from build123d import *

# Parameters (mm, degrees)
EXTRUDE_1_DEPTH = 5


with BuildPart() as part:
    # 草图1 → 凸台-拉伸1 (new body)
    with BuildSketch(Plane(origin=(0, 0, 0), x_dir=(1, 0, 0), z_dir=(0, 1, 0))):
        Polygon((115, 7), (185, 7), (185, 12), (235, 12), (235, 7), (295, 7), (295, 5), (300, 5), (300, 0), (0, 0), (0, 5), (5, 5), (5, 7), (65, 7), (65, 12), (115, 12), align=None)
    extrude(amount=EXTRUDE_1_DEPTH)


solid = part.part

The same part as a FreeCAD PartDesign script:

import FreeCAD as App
import Part
import Sketcher

V = App.Vector


def add_polygon(sketch, points):
    """Adds a closed chain of lines whose ends are joined by coincident constraints."""
    first, n = sketch.GeometryCount, len(points)
    for a, b in zip(points, points[1:] + points[:1]):
        sketch.addGeometry(Part.LineSegment(App.Vector(*a, 0), App.Vector(*b, 0)), False)
    for i in range(n):
        sketch.addConstraint(Sketcher.Constraint("Coincident", first + i, 2, first + (i + 1) % n, 1))

doc = App.newDocument("Part")
body = doc.addObject("PartDesign::Body", "Body")

# Sketch on XZ plane
sketch1 = doc.addObject("Sketcher::SketchObject", "Sketch")
body.addObject(sketch1)
sketch1.AttachmentSupport = (doc.XZ_Plane, [""])
sketch1.MapMode = "FlatFace"
add_polygon(sketch1, [(185, -7), (115, -7), (115, -12), (65, -12), (65, -7), (5, -7), (5, -5), (0, -5), (0, 0), (300, 0), (300, -5), (295, -5), (295, -7), (235, -7), (235, -12), (185, -12)])  # lines 0-15
sketch1.addConstraint([
    Sketcher.Constraint("Horizontal", 0),
    Sketcher.Constraint("Vertical", 1),
    Sketcher.Constraint("Horizontal", 2),
    Sketcher.Constraint("Vertical", 3),
    Sketcher.Constraint("Horizontal", 4),
    Sketcher.Constraint("Vertical", 5),
    Sketcher.Constraint("Horizontal", 6),
    Sketcher.Constraint("Vertical", 7),
    Sketcher.Constraint("Horizontal", 8),
    Sketcher.Constraint("Vertical", 9),
    Sketcher.Constraint("Horizontal", 10),
    Sketcher.Constraint("Vertical", 11),
    Sketcher.Constraint("Horizontal", 12),
    Sketcher.Constraint("Vertical", 13),
    Sketcher.Constraint("Horizontal", 14),
    Sketcher.Constraint("Vertical", 15),
    Sketcher.Constraint("Coincident", 7, 2, -1, 1),
    Sketcher.Constraint("Horizontal", 0, 2, 3, 2),
    Sketcher.Constraint("Horizontal", 6, 2, 9, 2),
    Sketcher.Constraint("Horizontal", 4, 2, 11, 2),
    Sketcher.Constraint("Horizontal", 2, 2, 13, 2),
    Sketcher.Constraint("Equal", 6, 10),
    Sketcher.Constraint("Equal", 4, 12),
    Sketcher.Constraint("Equal", 2, 14),
    Sketcher.Constraint("Equal", 10, 1),
    Sketcher.Constraint("Equal", 3, 7),
    Sketcher.Constraint("DistanceX", 0, 2, 0, 1, 70.0),
    Sketcher.Constraint("DistanceX", 2, 2, 2, 1, 50.0),
    Sketcher.Constraint("DistanceX", 4, 2, 4, 1, 60.0),
    Sketcher.Constraint("DistanceX", 6, 2, 6, 1, 5.0),
    Sketcher.Constraint("DistanceY", 5, 1, 5, 2, 2.0),
])
pad1 = doc.addObject("PartDesign::Pad", "Pad")
body.addObject(pad1)
pad1.Profile = sketch1
pad1.Length = 5
pad1.Reversed = True

doc.recompute()
